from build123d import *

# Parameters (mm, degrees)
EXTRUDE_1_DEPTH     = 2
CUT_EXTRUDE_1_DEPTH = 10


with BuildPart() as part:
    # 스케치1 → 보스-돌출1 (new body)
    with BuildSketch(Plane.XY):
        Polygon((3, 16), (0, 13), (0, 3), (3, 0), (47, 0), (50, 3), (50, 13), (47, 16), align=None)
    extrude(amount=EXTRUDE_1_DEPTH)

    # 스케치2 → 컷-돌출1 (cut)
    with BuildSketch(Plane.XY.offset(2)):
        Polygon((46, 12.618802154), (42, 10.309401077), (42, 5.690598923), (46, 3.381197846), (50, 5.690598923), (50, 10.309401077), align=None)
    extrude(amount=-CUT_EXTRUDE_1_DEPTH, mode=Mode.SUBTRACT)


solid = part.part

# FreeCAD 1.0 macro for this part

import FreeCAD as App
import Part
import Sketcher

V = App.Vector
Q = App.Units.Quantity

doc = App.newDocument("Part")
body = doc.addObject("PartDesign::Body", "Body")

sketch1 = doc.addObject("Sketcher::SketchObject", "Sketch")
body.addObject(sketch1)
sketch1.AttachmentSupport = (doc.XY_Plane, [""])
sketch1.MapMode = "FlatFace"
sketch1.addGeometry([
    Part.LineSegment(V(3, 16, 0), V(0, 13, 0)),
    Part.LineSegment(V(0, 13, 0), V(0, 3, 0)),
    Part.LineSegment(V(0, 3, 0), V(3, 0, 0)),
    Part.LineSegment(V(3, 0, 0), V(47, 0, 0)),
    Part.LineSegment(V(47, 0, 0), V(50, 3, 0)),
    Part.LineSegment(V(50, 3, 0), V(50, 13, 0)),
    Part.LineSegment(V(50, 13, 0), V(47, 16, 0)),
    Part.LineSegment(V(47, 16, 0), V(3, 16, 0)),
], False)
sketch1.addConstraint([
    Sketcher.Constraint("Coincident", 0, 2, 1, 1),
    Sketcher.Constraint("Coincident", 1, 2, 2, 1),
    Sketcher.Constraint("Coincident", 2, 2, 3, 1),
    Sketcher.Constraint("Coincident", 3, 2, 4, 1),
    Sketcher.Constraint("Coincident", 4, 2, 5, 1),
    Sketcher.Constraint("Coincident", 5, 2, 6, 1),
    Sketcher.Constraint("Coincident", 6, 2, 7, 1),
    Sketcher.Constraint("Coincident", 7, 2, 0, 1),
    Sketcher.Constraint("Vertical", 1),
    Sketcher.Constraint("Horizontal", 3),
    Sketcher.Constraint("Vertical", 5),
    Sketcher.Constraint("Horizontal", 7),
    Sketcher.Constraint("PointOnObject", 0, 2, -2),
    Sketcher.Constraint("PointOnObject", 2, 2, -1),
    Sketcher.Constraint("Perpendicular", 0, 2),
    Sketcher.Constraint("Perpendicular", 2, 4),
    Sketcher.Constraint("Perpendicular", 4, 6),
    Sketcher.Constraint("Horizontal", 1, 2, 4, 2),
    Sketcher.Constraint("Horizontal", 0, 2, 5, 2),
    Sketcher.Constraint("Vertical", 3, 2, 6, 2),
    Sketcher.Constraint("Vertical", 2, 2, 7, 2),
    Sketcher.Constraint("DistanceX", 3, 1, 3, 2, Q("44 mm")),
    Sketcher.Constraint("DistanceY", 1, 2, 1, 1, Q("10 mm")),
    Sketcher.Constraint("DistanceY", -1, 1, 0, 2, Q("13 mm")),
])
pad1 = doc.addObject("PartDesign::Pad", "Pad")
body.addObject(pad1)
pad1.Profile = sketch1
pad1.Length = 2

sketch2 = doc.addObject("Sketcher::SketchObject", "Sketch001")
body.addObject(sketch2)
sketch2.AttachmentSupport = (doc.XY_Plane, [""])
sketch2.MapMode = "FlatFace"
sketch2.AttachmentOffset = App.Placement(V(0, 0, 2), App.Rotation())
sketch2.addGeometry([
    Part.LineSegment(V(46, 12.618802, 0), V(42, 10.309401, 0)),
    Part.LineSegment(V(42, 10.309401, 0), V(42, 5.690599, 0)),
    Part.LineSegment(V(42, 5.690599, 0), V(46, 3.381198, 0)),
    Part.LineSegment(V(46, 3.381198, 0), V(50, 5.690599, 0)),
    Part.LineSegment(V(50, 5.690599, 0), V(50, 10.309401, 0)),
    Part.LineSegment(V(50, 10.309401, 0), V(46, 12.618802, 0)),
], False)
sketch2.addConstraint([
    Sketcher.Constraint("Coincident", 0, 2, 1, 1),
    Sketcher.Constraint("Coincident", 1, 2, 2, 1),
    Sketcher.Constraint("Coincident", 2, 2, 3, 1),
    Sketcher.Constraint("Coincident", 3, 2, 4, 1),
    Sketcher.Constraint("Coincident", 4, 2, 5, 1),
    Sketcher.Constraint("Coincident", 5, 2, 0, 1),
    Sketcher.Constraint("Vertical", 1),
    Sketcher.Constraint("Vertical", 4),
    Sketcher.Constraint("Parallel", 0, 3),
    Sketcher.Constraint("Parallel", 2, 5),
    Sketcher.Constraint("Horizontal", 1, 2, 3, 2),
    Sketcher.Constraint("Horizontal", 0, 2, 4, 2),
    Sketcher.Constraint("Vertical", 2, 2, 5, 2),
    Sketcher.Constraint("Angle", 0, Q("-150 deg")),
    Sketcher.Constraint("DistanceX", -1, 1, 0, 2, Q("42 mm")),
    Sketcher.Constraint("DistanceX", -1, 1, 2, 2, Q("46 mm")),
    Sketcher.Constraint("DistanceY", -1, 1, 0, 2, Q("10.309401 mm")),
    Sketcher.Constraint("DistanceY", -1, 1, 1, 2, Q("5.690599 mm")),
])
pocket1 = doc.addObject("PartDesign::Pocket", "Pocket")
body.addObject(pocket1)
pocket1.Profile = sketch2
pocket1.Length = 10

doc.recompute()
